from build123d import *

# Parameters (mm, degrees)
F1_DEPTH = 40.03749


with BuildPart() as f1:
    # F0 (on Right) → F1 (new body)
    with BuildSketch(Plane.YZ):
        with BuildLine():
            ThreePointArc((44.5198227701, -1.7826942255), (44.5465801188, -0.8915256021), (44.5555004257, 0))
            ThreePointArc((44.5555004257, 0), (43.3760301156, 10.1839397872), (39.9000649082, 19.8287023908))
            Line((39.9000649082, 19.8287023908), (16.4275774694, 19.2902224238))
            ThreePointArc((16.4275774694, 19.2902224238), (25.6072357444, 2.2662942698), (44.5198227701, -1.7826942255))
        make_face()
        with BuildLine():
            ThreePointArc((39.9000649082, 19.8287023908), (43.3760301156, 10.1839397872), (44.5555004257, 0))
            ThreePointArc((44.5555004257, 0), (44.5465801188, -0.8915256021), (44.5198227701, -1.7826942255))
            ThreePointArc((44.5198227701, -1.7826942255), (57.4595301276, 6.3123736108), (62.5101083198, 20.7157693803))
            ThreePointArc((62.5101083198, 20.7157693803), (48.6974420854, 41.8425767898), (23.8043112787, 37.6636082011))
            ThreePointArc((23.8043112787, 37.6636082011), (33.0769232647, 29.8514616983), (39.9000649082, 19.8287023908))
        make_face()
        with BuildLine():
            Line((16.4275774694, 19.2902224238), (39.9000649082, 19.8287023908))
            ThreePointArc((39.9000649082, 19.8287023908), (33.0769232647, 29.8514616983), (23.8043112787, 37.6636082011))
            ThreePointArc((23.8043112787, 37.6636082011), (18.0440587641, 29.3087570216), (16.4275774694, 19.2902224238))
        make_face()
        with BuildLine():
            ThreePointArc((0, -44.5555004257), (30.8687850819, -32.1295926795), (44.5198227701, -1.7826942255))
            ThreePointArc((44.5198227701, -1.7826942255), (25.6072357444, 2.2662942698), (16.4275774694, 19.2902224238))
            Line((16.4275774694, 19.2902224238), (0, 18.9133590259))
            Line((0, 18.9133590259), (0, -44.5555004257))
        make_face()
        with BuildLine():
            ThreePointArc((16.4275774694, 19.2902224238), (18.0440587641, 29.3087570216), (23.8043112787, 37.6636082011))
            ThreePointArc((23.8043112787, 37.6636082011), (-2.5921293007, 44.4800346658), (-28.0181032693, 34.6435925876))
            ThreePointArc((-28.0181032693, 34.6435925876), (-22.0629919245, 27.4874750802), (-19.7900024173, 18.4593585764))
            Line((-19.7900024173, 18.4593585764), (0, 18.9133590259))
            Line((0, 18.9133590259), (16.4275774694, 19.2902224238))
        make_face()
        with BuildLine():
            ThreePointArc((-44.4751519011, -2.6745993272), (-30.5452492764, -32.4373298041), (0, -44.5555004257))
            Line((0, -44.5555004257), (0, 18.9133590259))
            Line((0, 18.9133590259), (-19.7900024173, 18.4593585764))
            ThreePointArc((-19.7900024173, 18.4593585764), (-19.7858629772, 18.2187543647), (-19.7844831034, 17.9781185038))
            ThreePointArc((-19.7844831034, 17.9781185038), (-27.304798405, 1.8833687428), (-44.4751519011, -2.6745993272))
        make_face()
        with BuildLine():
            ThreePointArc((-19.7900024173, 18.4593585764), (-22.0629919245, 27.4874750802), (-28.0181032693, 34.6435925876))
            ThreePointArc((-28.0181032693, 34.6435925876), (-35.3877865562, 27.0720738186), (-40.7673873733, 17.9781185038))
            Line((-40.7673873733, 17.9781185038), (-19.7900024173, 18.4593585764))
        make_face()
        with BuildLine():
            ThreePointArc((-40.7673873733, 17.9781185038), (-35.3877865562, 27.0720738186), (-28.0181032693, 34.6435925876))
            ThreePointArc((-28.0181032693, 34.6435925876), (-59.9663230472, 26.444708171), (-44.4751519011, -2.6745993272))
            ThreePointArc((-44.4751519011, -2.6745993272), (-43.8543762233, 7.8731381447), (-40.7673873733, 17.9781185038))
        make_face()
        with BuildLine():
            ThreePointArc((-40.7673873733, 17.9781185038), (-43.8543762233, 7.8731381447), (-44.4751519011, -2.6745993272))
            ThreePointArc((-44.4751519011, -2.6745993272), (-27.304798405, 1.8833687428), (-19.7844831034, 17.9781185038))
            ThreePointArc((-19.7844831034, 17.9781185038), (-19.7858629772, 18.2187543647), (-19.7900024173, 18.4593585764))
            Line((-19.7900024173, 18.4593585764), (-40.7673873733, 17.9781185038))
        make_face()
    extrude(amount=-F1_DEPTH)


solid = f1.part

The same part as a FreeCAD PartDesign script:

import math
import FreeCAD as App
import Part
import Sketcher
from FreeCAD import Vector
Q = App.Units.Quantity

doc = App.newDocument("Part")
body = doc.addObject("PartDesign::Body", "Body")

sketch1 = body.newObject("Sketcher::SketchObject", "Sketch")
sketch1.AttachmentSupport = (doc.getObject("YZ_Plane"), [""])
sketch1.MapMode = "FlatFace"
sketch1.addGeometry(Part.ArcOfCircle(Part.Circle(Vector(-41, 18, 0), Vector(0, 0, 1), 21), math.radians(53), math.radians(260)), False)
sketch1.addGeometry(Part.ArcOfCircle(Part.Circle(Vector(0, 0, 0), Vector(0, 0, 1), 45), math.radians(-177), math.radians(-90)), False)
sketch1.addGeometry(Part.ArcOfCircle(Part.Circle(Vector(0, 0, 0), Vector(0, 0, 1), 45), math.radians(-90), math.radians(-2)), False)
sketch1.addGeometry(Part.ArcOfCircle(Part.Circle(Vector(39, 21, 0), Vector(0, 0, 1), 23), math.radians(-77), math.radians(0)), False)
sketch1.addGeometry(Part.ArcOfCircle(Part.Circle(Vector(39, 21, 0), Vector(0, 0, 1), 23), math.radians(0), math.radians(133)), False)
sketch1.addGeometry(Part.ArcOfCircle(Part.Circle(Vector(0, 0, 0), Vector(0, 0, 1), 45), math.radians(58), math.radians(129)), False)
sketch1.addConstraint(Sketcher.Constraint("Coincident", 0, 2, 1, 1))
sketch1.addConstraint(Sketcher.Constraint("Tangent", 1, 2, 2, 1))
sketch1.addConstraint(Sketcher.Constraint("Coincident", 2, 2, 3, 1))
sketch1.addConstraint(Sketcher.Constraint("Tangent", 3, 2, 4, 1))
sketch1.addConstraint(Sketcher.Constraint("Coincident", 4, 2, 5, 1))
sketch1.addConstraint(Sketcher.Constraint("Coincident", 5, 2, 0, 1))
sketch1.addConstraint(Sketcher.Constraint("Coincident", 1, 3, -1, 1))
sketch1.addConstraint(Sketcher.Constraint("Coincident", 5, 3, -1, 1))
sketch1.addConstraint(Sketcher.Constraint("Equal", 1, 2))
sketch1.addConstraint(Sketcher.Constraint("Equal", 3, 4))
sketch1.addConstraint(Sketcher.Constraint("Equal", 2, 5))
sketch1.addConstraint(Sketcher.Constraint("PointOnObject", 1, 2, -2))
sketch1.addConstraint(Sketcher.Constraint("Horizontal", 4, 3, 3, 2))
sketch1.addConstraint(Sketcher.Constraint("Radius", 1, Q("44.5555 mm")))
sketch1.addConstraint(Sketcher.Constraint("Radius", 0, Q("20.982904 mm")))
sketch1.addConstraint(Sketcher.Constraint("Radius", 3, Q("23.063315 mm")))
sketch1.addConstraint(Sketcher.Constraint("DistanceY", 0, 2, -1, 1, Q("2.674599 mm")))
sketch1.addConstraint(Sketcher.Constraint("DistanceY", -1, 1, 0, 3, Q("17.978119 mm")))
sketch1.addConstraint(Sketcher.Constraint("DistanceY", -1, 1, 3, 3, Q("20.715769 mm")))
sketch1.addConstraint(Sketcher.Constraint("DistanceX", -1, 1, 3, 2, Q("62.510108 mm")))
pad1 = body.newObject("PartDesign::Pad", "Pad")
pad1.Profile = sketch1
pad1.Length = 40.03749
pad1.Reversed = True

doc.recompute()
